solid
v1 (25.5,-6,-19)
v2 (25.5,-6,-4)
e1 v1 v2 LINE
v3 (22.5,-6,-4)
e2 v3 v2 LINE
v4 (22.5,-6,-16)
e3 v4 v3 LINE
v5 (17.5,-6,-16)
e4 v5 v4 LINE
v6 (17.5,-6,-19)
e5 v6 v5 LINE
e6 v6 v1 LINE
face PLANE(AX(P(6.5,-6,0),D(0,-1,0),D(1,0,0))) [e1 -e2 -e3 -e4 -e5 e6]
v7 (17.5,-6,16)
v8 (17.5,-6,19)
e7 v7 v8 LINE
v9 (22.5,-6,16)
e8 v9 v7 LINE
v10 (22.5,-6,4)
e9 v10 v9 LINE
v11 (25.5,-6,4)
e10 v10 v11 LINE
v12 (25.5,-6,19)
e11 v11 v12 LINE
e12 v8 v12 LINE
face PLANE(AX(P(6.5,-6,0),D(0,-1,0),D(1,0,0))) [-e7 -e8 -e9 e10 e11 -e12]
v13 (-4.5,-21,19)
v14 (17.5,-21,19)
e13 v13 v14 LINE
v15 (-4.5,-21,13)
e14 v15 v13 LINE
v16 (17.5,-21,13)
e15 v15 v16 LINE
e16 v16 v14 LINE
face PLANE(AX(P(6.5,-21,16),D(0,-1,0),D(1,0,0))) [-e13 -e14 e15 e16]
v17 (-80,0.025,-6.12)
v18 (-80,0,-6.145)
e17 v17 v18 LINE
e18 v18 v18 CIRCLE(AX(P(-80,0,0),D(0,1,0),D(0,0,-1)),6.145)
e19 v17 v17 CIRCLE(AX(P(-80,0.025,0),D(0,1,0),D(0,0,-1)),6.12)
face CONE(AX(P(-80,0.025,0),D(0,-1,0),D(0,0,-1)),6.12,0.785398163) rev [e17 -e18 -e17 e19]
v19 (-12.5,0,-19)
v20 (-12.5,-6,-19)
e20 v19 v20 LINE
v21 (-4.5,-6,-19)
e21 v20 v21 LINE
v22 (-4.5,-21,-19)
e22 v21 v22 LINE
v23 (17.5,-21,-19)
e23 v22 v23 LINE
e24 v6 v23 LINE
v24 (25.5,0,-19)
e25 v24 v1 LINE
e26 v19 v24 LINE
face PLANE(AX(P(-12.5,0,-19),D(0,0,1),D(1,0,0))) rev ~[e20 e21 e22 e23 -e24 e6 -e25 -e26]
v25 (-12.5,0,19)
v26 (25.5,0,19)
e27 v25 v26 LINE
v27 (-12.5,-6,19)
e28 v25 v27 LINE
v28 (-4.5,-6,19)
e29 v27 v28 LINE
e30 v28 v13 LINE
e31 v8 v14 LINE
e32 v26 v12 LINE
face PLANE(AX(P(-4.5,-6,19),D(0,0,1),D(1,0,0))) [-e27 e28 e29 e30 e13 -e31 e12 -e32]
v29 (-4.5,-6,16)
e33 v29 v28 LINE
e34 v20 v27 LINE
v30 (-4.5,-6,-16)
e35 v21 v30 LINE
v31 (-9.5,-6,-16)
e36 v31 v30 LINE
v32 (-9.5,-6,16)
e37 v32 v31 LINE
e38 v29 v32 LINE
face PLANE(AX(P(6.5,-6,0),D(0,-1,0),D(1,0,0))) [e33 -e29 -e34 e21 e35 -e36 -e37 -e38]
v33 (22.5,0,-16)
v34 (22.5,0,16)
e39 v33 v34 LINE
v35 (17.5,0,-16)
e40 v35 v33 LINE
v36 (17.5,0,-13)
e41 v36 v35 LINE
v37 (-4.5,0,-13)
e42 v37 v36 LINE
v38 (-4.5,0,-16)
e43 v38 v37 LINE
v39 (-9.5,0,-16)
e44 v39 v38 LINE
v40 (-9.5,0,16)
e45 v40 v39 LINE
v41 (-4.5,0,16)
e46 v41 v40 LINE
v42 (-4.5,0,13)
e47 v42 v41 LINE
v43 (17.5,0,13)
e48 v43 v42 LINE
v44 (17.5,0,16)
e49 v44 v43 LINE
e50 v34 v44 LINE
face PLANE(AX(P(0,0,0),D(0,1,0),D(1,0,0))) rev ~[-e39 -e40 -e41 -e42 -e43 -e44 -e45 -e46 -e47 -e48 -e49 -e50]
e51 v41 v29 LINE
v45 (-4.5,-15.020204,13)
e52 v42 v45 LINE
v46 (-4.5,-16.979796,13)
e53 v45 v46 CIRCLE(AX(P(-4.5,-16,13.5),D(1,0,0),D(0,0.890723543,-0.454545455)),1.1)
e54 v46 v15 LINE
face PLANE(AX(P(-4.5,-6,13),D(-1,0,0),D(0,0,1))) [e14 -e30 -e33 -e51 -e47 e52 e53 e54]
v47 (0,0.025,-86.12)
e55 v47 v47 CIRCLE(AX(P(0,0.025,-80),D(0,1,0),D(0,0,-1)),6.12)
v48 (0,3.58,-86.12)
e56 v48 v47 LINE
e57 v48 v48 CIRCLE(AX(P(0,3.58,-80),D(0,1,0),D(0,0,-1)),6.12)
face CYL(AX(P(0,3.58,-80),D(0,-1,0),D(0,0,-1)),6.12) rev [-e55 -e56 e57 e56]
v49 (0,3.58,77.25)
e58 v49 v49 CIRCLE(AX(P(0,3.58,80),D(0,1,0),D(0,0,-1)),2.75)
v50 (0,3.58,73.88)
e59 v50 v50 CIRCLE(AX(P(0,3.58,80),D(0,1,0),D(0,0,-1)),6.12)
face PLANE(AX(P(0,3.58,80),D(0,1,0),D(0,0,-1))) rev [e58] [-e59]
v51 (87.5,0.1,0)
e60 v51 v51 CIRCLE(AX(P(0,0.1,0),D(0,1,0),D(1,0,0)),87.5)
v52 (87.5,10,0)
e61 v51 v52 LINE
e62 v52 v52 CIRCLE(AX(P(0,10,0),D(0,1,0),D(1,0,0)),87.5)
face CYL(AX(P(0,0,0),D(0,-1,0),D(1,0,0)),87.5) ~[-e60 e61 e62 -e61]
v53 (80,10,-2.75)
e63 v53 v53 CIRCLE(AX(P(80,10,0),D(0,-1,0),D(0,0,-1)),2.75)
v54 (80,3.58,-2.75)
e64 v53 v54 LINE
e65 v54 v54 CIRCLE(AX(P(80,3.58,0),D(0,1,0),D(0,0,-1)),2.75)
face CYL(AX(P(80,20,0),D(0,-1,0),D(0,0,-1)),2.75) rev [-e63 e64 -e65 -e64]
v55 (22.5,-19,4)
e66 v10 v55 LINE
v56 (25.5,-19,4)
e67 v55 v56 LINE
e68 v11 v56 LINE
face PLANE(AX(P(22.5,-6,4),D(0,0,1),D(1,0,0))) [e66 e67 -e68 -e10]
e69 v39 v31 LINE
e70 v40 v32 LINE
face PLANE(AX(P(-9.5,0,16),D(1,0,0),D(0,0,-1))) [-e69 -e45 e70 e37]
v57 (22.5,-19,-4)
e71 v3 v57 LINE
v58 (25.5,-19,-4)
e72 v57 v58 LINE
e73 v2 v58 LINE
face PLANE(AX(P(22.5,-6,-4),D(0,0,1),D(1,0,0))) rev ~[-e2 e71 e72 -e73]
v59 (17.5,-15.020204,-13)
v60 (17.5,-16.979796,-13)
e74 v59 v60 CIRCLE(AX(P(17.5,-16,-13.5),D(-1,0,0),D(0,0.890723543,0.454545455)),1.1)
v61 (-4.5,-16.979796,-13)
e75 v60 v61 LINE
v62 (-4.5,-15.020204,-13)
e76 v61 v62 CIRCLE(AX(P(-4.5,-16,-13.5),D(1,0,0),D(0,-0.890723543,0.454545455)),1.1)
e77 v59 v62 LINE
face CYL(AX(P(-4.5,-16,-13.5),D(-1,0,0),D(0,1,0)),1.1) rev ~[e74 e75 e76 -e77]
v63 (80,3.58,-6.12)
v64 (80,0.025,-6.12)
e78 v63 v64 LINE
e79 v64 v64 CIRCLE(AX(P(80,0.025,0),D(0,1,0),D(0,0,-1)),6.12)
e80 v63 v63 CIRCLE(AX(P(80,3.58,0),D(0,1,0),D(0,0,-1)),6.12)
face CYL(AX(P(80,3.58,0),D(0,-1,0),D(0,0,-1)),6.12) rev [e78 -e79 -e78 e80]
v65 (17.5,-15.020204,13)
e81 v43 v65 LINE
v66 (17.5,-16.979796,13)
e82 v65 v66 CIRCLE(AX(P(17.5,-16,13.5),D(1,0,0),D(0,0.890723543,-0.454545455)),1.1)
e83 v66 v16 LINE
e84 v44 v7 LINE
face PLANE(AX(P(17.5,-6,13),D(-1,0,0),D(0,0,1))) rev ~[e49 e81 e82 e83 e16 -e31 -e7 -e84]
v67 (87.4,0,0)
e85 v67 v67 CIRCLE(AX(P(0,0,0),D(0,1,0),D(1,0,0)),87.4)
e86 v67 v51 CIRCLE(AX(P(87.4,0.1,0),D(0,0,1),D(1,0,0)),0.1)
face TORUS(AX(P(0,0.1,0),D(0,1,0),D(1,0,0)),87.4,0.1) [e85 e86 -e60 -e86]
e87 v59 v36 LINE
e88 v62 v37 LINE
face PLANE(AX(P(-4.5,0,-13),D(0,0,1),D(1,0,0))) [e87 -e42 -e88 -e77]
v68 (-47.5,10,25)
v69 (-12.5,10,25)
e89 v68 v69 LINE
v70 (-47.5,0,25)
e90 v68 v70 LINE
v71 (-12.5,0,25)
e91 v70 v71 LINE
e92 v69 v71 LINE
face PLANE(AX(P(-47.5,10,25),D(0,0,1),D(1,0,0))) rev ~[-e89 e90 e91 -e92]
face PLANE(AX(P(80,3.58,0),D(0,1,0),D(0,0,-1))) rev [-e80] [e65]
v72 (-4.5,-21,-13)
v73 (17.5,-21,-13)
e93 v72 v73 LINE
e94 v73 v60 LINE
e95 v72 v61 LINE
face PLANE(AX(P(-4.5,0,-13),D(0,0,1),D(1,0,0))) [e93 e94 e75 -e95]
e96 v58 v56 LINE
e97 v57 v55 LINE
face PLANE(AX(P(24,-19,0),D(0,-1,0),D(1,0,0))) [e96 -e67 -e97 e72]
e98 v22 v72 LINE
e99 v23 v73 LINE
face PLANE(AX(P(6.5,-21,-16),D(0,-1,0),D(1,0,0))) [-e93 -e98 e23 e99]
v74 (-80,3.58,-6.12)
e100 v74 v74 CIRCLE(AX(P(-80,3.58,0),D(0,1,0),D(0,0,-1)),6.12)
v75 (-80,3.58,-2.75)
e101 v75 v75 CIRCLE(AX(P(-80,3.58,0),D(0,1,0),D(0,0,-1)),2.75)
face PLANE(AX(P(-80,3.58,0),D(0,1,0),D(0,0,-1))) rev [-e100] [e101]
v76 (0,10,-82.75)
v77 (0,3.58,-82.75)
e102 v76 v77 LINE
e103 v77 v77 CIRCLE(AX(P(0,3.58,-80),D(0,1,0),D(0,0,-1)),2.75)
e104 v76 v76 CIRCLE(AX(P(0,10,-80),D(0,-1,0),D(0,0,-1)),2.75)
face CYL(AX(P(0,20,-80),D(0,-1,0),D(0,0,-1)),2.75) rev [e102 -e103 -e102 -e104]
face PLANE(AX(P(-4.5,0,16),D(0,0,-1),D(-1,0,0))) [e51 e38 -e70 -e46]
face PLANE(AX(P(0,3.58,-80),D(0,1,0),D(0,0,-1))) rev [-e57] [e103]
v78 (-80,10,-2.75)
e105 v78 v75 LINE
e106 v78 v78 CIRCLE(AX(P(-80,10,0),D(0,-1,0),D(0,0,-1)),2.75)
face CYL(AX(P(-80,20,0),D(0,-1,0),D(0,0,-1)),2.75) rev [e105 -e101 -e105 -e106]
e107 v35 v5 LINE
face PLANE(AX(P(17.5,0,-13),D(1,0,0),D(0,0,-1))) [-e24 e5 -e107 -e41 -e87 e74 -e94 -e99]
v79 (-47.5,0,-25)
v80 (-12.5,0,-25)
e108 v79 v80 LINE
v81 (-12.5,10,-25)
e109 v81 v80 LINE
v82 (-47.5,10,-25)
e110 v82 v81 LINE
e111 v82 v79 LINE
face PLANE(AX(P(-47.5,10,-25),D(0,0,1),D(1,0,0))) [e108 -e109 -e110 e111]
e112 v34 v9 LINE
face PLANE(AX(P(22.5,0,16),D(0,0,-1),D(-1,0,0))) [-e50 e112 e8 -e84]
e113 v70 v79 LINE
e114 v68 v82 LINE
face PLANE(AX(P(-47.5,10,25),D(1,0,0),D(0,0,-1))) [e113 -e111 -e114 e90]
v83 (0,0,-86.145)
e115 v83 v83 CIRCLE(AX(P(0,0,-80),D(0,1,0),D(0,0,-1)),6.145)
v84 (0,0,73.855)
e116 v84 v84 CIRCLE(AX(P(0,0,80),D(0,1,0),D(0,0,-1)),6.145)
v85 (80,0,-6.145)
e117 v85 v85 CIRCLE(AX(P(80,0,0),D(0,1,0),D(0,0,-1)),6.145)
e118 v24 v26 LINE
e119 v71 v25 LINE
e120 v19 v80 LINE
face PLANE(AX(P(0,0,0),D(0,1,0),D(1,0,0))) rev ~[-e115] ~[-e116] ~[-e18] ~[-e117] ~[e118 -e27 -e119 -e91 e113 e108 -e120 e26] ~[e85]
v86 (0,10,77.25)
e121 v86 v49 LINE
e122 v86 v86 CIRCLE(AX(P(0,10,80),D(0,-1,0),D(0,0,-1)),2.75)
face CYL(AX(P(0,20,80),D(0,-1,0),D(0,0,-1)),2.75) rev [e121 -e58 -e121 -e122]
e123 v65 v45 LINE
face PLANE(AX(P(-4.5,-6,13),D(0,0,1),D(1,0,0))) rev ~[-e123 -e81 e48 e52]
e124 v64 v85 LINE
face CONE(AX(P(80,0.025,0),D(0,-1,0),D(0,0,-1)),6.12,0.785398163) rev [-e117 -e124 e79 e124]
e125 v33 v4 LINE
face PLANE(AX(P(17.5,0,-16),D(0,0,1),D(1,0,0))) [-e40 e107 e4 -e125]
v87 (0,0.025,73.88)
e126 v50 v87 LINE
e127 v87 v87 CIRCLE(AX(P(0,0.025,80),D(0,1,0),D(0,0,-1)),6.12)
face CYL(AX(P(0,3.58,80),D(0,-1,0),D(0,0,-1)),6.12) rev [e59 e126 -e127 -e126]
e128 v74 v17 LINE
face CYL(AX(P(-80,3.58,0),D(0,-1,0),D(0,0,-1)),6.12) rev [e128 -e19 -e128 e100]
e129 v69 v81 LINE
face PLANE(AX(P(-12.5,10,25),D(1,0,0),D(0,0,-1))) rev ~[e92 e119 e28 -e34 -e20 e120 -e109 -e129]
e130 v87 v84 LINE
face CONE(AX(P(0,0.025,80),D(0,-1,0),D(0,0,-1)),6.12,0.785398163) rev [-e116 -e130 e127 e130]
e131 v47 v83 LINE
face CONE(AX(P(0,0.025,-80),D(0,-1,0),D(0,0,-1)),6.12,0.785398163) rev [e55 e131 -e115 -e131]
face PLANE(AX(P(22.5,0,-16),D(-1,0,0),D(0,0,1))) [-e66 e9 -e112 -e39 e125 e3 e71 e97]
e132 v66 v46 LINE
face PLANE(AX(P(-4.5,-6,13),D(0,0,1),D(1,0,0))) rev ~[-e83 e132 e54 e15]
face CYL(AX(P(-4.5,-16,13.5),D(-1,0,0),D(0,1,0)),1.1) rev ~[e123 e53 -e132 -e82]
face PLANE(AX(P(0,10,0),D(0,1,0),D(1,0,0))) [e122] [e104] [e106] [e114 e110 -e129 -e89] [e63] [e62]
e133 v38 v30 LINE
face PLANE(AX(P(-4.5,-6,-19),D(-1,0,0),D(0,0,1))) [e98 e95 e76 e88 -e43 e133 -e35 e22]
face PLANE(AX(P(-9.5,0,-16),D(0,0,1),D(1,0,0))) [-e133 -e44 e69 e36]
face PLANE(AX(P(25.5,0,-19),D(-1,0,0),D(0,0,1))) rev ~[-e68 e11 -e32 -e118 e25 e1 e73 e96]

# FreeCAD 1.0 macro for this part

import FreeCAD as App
import Part
import Sketcher

V = App.Vector
Q = App.Units.Quantity


def edges_at(feature, points):
    """Names of the edges that pass closest to the given points."""
    edges = feature.Shape.Edges
    near = lambda p: min(range(len(edges)), key=lambda i: edges[i].distToShape(Part.Vertex(*p))[0])
    return sorted({f"Edge{near(p) + 1}" for p in points})


def add_polygon(sketch, points):
    """Adds a closed chain of lines whose ends are joined by coincident constraints."""
    first, n = sketch.GeometryCount, len(points)
    for a, b in zip(points, points[1:] + points[:1]):
        sketch.addGeometry(Part.LineSegment(App.Vector(*a, 0), App.Vector(*b, 0)), False)
    for i in range(n):
        sketch.addConstraint(Sketcher.Constraint("Coincident", first + i, 2, first + (i + 1) % n, 1))

doc = App.newDocument("Part")
body = doc.addObject("PartDesign::Body", "Body")

sketch1 = body.newObject("Sketcher::SketchObject", "Sketch")
sketch1.AttachmentSupport = (doc.getObject("XZ_Plane"), [""])
sketch1.MapMode = "FlatFace"
sketch1.addGeometry(Part.Circle(V(0, 0, 0), V(0, 0, 1), 88), False)
sketch1.addConstraint(Sketcher.Constraint("Coincident", 0, 3, -1, 1))
sketch1.addConstraint(Sketcher.Constraint("Diameter", 0, 175.0))
pad1 = body.newObject("PartDesign::Pad", "Pad")
pad1.Profile = sketch1
pad1.Length = 10
pad1.Reversed = True

sketch2 = body.newObject("Sketcher::SketchObject", "Sketch001")
sketch2.AttachmentSupport = (doc.getObject("XZ_Plane"), [""])
sketch2.MapMode = "FlatFace"
sketch2.AttachmentOffset = App.Placement(V(0, 0, -10), App.Rotation())
sketch2.addGeometry(Part.Circle(V(0, 80, 0), V(0, 0, 1), 8), False)
sketch2.addGeometry(Part.Circle(V(-80, 0, 0), V(0, 0, 1), 8), False)
sketch2.addGeometry(Part.Circle(V(0, -80, 0), V(0, 0, 1), 8), False)
sketch2.addGeometry(Part.Circle(V(80, 0, 0), V(0, 0, 1), 8), False)
sketch2.addConstraint(Sketcher.Constraint("Equal", 0, 1))
sketch2.addConstraint(Sketcher.Constraint("Equal", 1, 2))
sketch2.addConstraint(Sketcher.Constraint("Equal", 2, 3))
sketch2.addConstraint(Sketcher.Constraint("Symmetric", 0, 3, 2, 3, -1, 1))
sketch2.addConstraint(Sketcher.Constraint("Symmetric", 1, 3, 3, 3, -1, 1))
sketch2.addConstraint(Sketcher.Constraint("PointOnObject", 0, 3, -2))
sketch2.addConstraint(Sketcher.Constraint("PointOnObject", 1, 3, -1))
sketch2.addConstraint(Sketcher.Constraint("Diameter", 0, 15.0))
sketch2.addConstraint(Sketcher.Constraint("DistanceY", -1, 1, 0, 3, 80.0))
sketch2.addConstraint(Sketcher.Constraint("DistanceX", 1, 3, -1, 1, 80.0))
pad2 = body.newObject("PartDesign::Pad", "Pad001")
pad2.Profile = sketch2
pad2.Length = 80
pad2.Reversed = True

sketch3 = body.newObject("Sketcher::SketchObject", "Sketch002")
sketch3.AttachmentSupport = (doc.getObject("YZ_Plane"), [""])
sketch3.MapMode = "FlatFace"
sketch3.AttachmentOffset = App.Placement(V(0, 0, 80), App.Rotation())
add_polygon(sketch3, [(21.652, 0), (0, 0), (0, -6.145), (0.025, -6.12), (3.58, -6.12), (3.58, -2.75), (20, -2.75)])
sketch3.addConstraint(Sketcher.Constraint("Horizontal", 0))
sketch3.addConstraint(Sketcher.Constraint("Vertical", 1))
sketch3.addConstraint(Sketcher.Constraint("Horizontal", 3))
sketch3.addConstraint(Sketcher.Constraint("Vertical", 4))
sketch3.addConstraint(Sketcher.Constraint("Horizontal", 5))
sketch3.addConstraint(Sketcher.Constraint("Coincident", 0, 2, -1, 1))
sketch3.addConstraint(Sketcher.Constraint("Angle", 2, Q("45 deg")))
sketch3.addConstraint(Sketcher.Constraint("Angle", 6, Q("59 deg")))
sketch3.addConstraint(Sketcher.Constraint("DistanceX", -1, 1, 5, 2, 20.0))
sketch3.addConstraint(Sketcher.Constraint("DistanceX", 5, 1, 5, 2, 16.42))
sketch3.addConstraint(Sketcher.Constraint("DistanceY", 4, 1, 4, 2, 3.37))
sketch3.addConstraint(Sketcher.Constraint("DistanceX", 3, 1, 3, 2, 3.555))
sketch3.addConstraint(Sketcher.Constraint("DistanceY", 1, 2, 1, 1, 6.145))
groove = body.newObject("PartDesign::Groove", "Groove")
groove.Profile = sketch3
groove.ReferenceAxis = (sketch3, ["H_Axis"])
groove.Angle = 360
doc.recompute()

datumline = body.newObject("PartDesign::Line", "DatumLine")
datumline.Placement = App.Placement(V(0, 0, 0), App.Rotation(V(0, 0, 1), V(-0.707106781, 0, -0.707106781)))
linearpattern = body.newObject("PartDesign::LinearPattern", "LinearPattern")
linearpattern.Originals = [groove]
linearpattern.Direction = (datumline, [""])
linearpattern.Mode = "offset"
linearpattern.Offset = 113.137085
linearpattern.Occurrences = 2
body.Tip = linearpattern
doc.recompute()

linearpattern2 = body.newObject("PartDesign::LinearPattern", "LinearPattern001")
linearpattern2.Originals = [groove]
linearpattern2.Direction = (doc.getObject("X_Axis"), [""])
linearpattern2.Mode = "offset"
linearpattern2.Offset = 160
linearpattern2.Occurrences = 2
linearpattern2.Reversed = True
body.Tip = linearpattern2
doc.recompute()

datumline2 = body.newObject("PartDesign::Line", "DatumLine001")
datumline2.Placement = App.Placement(V(0, 0, 0), App.Rotation(V(0, 0, 1), V(-0.707106781, 0, 0.707106781)))
linearpattern3 = body.newObject("PartDesign::LinearPattern", "LinearPattern002")
linearpattern3.Originals = [groove]
linearpattern3.Direction = (datumline2, [""])
linearpattern3.Mode = "offset"
linearpattern3.Offset = 113.137085
linearpattern3.Occurrences = 2
body.Tip = linearpattern3

sketch4 = body.newObject("Sketcher::SketchObject", "Sketch003")
sketch4.AttachmentSupport = (doc.getObject("XZ_Plane"), [""])
sketch4.MapMode = "FlatFace"
sketch4.AttachmentOffset = App.Placement(V(0, 0, -10), App.Rotation())
sketch4.addGeometry(Part.Circle(V(0, 0, 0), V(0, 0, 1), 88), False)
sketch4.addConstraint(Sketcher.Constraint("Coincident", 0, 3, -1, 1))
sketch4.addConstraint(Sketcher.Constraint("Diameter", 0, 175.0))
pocket1 = body.newObject("PartDesign::Pocket", "Pocket")
pocket1.Profile = sketch4
pocket1.Length = 80
doc.recompute()

fillet = body.newObject("PartDesign::Fillet", "Fillet")
fillet.Base = (pocket1, edges_at(pocket1, [(-87.5, 0, 0)]))
fillet.Radius = 0.1

sketch5 = body.newObject("Sketcher::SketchObject", "Sketch004")
sketch5.AttachmentSupport = (doc.getObject("XZ_Plane"), [""])
sketch5.MapMode = "FlatFace"
sketch5.AttachmentOffset = App.Placement(V(0, 0, -10), App.Rotation())
add_polygon(sketch5, [(-48, -25), (-48, 25), (-12, 25), (-12, -25)])
sketch5.addConstraint(Sketcher.Constraint("Vertical", 0))
sketch5.addConstraint(Sketcher.Constraint("Horizontal", 1))
sketch5.addConstraint(Sketcher.Constraint("Vertical", 2))
sketch5.addConstraint(Sketcher.Constraint("Horizontal", 3))
sketch5.addConstraint(Sketcher.Constraint("DistanceX", 1, 1, 1, 2, 35.0))
sketch5.addConstraint(Sketcher.Constraint("DistanceY", 0, 1, 0, 2, 50.0))
sketch5.addConstraint(Sketcher.Constraint("DistanceY", -1, 1, 0, 2, 25.0))
sketch5.addConstraint(Sketcher.Constraint("DistanceX", 0, 2, -1, 1, 47.5))
pocket2 = body.newObject("PartDesign::Pocket", "Pocket001")
pocket2.Profile = sketch5
pocket2.Length = 23
pocket2.Reversed = True

sketch6 = body.newObject("Sketcher::SketchObject", "Sketch005")
sketch6.AttachmentSupport = (doc.getObject("XZ_Plane"), [""])
sketch6.MapMode = "FlatFace"
add_polygon(sketch6, [(-12.5, 19), (-12.5, -19), (25.5, -19), (25.5, 19)])
add_polygon(sketch6, [(17.5, 16), (22.5, 16), (22.5, -16), (17.5, -16), (17.5, -13), (-4.5, -13), (-4.5, -16), (-9.5, -16), (-9.5, 16), (-4.5, 16), (-4.5, 13), (17.5, 13)])
sketch6.addConstraint(Sketcher.Constraint("Vertical", 0))
sketch6.addConstraint(Sketcher.Constraint("Horizontal", 1))
sketch6.addConstraint(Sketcher.Constraint("Vertical", 2))
sketch6.addConstraint(Sketcher.Constraint("Horizontal", 3))
sketch6.addConstraint(Sketcher.Constraint("Horizontal", 4))
sketch6.addConstraint(Sketcher.Constraint("Vertical", 5))
sketch6.addConstraint(Sketcher.Constraint("Horizontal", 6))
sketch6.addConstraint(Sketcher.Constraint("Vertical", 7))
sketch6.addConstraint(Sketcher.Constraint("Horizontal", 8))
sketch6.addConstraint(Sketcher.Constraint("Vertical", 9))
sketch6.addConstraint(Sketcher.Constraint("Horizontal", 10))
sketch6.addConstraint(Sketcher.Constraint("Vertical", 11))
sketch6.addConstraint(Sketcher.Constraint("Horizontal", 12))
sketch6.addConstraint(Sketcher.Constraint("Vertical", 13))
sketch6.addConstraint(Sketcher.Constraint("Horizontal", 14))
sketch6.addConstraint(Sketcher.Constraint("Vertical", 15))
sketch6.addConstraint(Sketcher.Constraint("Symmetric", 9, 2, 12, 2, -1))
sketch6.addConstraint(Sketcher.Constraint("Symmetric", 7, 2, 14, 2, -1))
sketch6.addConstraint(Sketcher.Constraint("Horizontal", 6, 2, 9, 2))
sketch6.addConstraint(Sketcher.Constraint("Horizontal", 4, 2, 11, 2))
sketch6.addConstraint(Sketcher.Constraint("Equal", 6, 10))
sketch6.addConstraint(Sketcher.Constraint("Equal", 3, 0))
sketch6.addConstraint(Sketcher.Constraint("DistanceX", 1, 1, 1, 2, 38.0))
sketch6.addConstraint(Sketcher.Constraint("DistanceX", 4, 1, 4, 2, 5.0))
sketch6.addConstraint(Sketcher.Constraint("DistanceX", 8, 2, 8, 1, 22.0))
sketch6.addConstraint(Sketcher.Constraint("DistanceY", 5, 2, 5, 1, 32.0))
sketch6.addConstraint(Sketcher.Constraint("DistanceY", 7, 1, 7, 2, 3.0))
sketch6.addConstraint(Sketcher.Constraint("DistanceY", 0, 2, -1, 1, 19.0))
sketch6.addConstraint(Sketcher.Constraint("DistanceX", 4, 2, 2, 2, 3.0))
sketch6.addConstraint(Sketcher.Constraint("DistanceX", 0, 2, -1, 1, 12.5))
pad3 = body.newObject("PartDesign::Pad", "Pad002")
pad3.Profile = sketch6
pad3.Length = 6

sketch7 = body.newObject("Sketcher::SketchObject", "Sketch006")
sketch7.AttachmentSupport = (doc.getObject("XZ_Plane"), [""])
sketch7.MapMode = "FlatFace"
sketch7.AttachmentOffset = App.Placement(V(0, 0, 6), App.Rotation())
add_polygon(sketch7, [(-4, 19), (-4, 13), (18, 13), (18, 19)])
add_polygon(sketch7, [(-4, -13), (-4, -19), (18, -19), (18, -13)])
sketch7.addConstraint(Sketcher.Constraint("Vertical", 0))
sketch7.addConstraint(Sketcher.Constraint("Horizontal", 1))
sketch7.addConstraint(Sketcher.Constraint("Vertical", 2))
sketch7.addConstraint(Sketcher.Constraint("Horizontal", 3))
sketch7.addConstraint(Sketcher.Constraint("Vertical", 4))
sketch7.addConstraint(Sketcher.Constraint("Horizontal", 5))
sketch7.addConstraint(Sketcher.Constraint("Vertical", 6))
sketch7.addConstraint(Sketcher.Constraint("Horizontal", 7))
sketch7.addConstraint(Sketcher.Constraint("Symmetric", 3, 2, 4, 2, -1))
sketch7.addConstraint(Sketcher.Constraint("Symmetric", 1, 2, 6, 2, -1))
sketch7.addConstraint(Sketcher.Constraint("DistanceX", 1, 1, 1, 2, 22.0))
sketch7.addConstraint(Sketcher.Constraint("DistanceY", 0, 2, 0, 1, 6.0))
sketch7.addConstraint(Sketcher.Constraint("DistanceY", -1, 1, 0, 2, 13.0))
sketch7.addConstraint(Sketcher.Constraint("DistanceX", 0, 2, -1, 1, 4.5))
pad4 = body.newObject("PartDesign::Pad", "Pad003")
pad4.Profile = sketch7
pad4.Length = 15

sketch8 = body.newObject("Sketcher::SketchObject", "Sketch007")
sketch8.AttachmentSupport = (doc.getObject("XZ_Plane"), [""])
sketch8.MapMode = "FlatFace"
sketch8.AttachmentOffset = App.Placement(V(0, 0, 6), App.Rotation())
add_polygon(sketch8, [(22.5, 4), (22.5, -4), (25.5, -4), (25.5, 4)])
sketch8.addConstraint(Sketcher.Constraint("Vertical", 0))
sketch8.addConstraint(Sketcher.Constraint("Horizontal", 1))
sketch8.addConstraint(Sketcher.Constraint("Vertical", 2))
sketch8.addConstraint(Sketcher.Constraint("Horizontal", 3))
sketch8.addConstraint(Sketcher.Constraint("DistanceX", 1, 1, 1, 2, 3.0))
sketch8.addConstraint(Sketcher.Constraint("DistanceY", 0, 2, 0, 1, 8.0))
sketch8.addConstraint(Sketcher.Constraint("DistanceY", 0, 2, -1, 1, 4.0))
sketch8.addConstraint(Sketcher.Constraint("DistanceX", -1, 1, 0, 2, 22.5))
pad5 = body.newObject("PartDesign::Pad", "Pad004")
pad5.Profile = sketch8
pad5.Length = 13

sketch9 = body.newObject("Sketcher::SketchObject", "Sketch008")
sketch9.AttachmentSupport = (doc.getObject("YZ_Plane"), [""])
sketch9.MapMode = "FlatFace"
sketch9.AttachmentOffset = App.Placement(V(0, 0, -4.5), App.Rotation())
sketch9.addGeometry(Part.Circle(V(-16, -13.5, 0), V(0, 0, 1), 1.1), False)
sketch9.addGeometry(Part.Circle(V(-16, 13.5, 0), V(0, 0, 1), 1.1), False)
sketch9.addConstraint(Sketcher.Constraint("Equal", 0, 1))
sketch9.addConstraint(Sketcher.Constraint("Symmetric", 0, 3, 1, 3, -1))
sketch9.addConstraint(Sketcher.Constraint("Diameter", 0, 2.2))
sketch9.addConstraint(Sketcher.Constraint("DistanceX", 0, 3, -1, 1, 16.0))
sketch9.addConstraint(Sketcher.Constraint("DistanceY", 0, 3, 1, 3, 27.0))
pocket3 = body.newObject("PartDesign::Pocket", "Pocket002")
pocket3.Profile = sketch9
pocket3.Type = "ThroughAll"
pocket3.Reversed = True

doc.recompute()
